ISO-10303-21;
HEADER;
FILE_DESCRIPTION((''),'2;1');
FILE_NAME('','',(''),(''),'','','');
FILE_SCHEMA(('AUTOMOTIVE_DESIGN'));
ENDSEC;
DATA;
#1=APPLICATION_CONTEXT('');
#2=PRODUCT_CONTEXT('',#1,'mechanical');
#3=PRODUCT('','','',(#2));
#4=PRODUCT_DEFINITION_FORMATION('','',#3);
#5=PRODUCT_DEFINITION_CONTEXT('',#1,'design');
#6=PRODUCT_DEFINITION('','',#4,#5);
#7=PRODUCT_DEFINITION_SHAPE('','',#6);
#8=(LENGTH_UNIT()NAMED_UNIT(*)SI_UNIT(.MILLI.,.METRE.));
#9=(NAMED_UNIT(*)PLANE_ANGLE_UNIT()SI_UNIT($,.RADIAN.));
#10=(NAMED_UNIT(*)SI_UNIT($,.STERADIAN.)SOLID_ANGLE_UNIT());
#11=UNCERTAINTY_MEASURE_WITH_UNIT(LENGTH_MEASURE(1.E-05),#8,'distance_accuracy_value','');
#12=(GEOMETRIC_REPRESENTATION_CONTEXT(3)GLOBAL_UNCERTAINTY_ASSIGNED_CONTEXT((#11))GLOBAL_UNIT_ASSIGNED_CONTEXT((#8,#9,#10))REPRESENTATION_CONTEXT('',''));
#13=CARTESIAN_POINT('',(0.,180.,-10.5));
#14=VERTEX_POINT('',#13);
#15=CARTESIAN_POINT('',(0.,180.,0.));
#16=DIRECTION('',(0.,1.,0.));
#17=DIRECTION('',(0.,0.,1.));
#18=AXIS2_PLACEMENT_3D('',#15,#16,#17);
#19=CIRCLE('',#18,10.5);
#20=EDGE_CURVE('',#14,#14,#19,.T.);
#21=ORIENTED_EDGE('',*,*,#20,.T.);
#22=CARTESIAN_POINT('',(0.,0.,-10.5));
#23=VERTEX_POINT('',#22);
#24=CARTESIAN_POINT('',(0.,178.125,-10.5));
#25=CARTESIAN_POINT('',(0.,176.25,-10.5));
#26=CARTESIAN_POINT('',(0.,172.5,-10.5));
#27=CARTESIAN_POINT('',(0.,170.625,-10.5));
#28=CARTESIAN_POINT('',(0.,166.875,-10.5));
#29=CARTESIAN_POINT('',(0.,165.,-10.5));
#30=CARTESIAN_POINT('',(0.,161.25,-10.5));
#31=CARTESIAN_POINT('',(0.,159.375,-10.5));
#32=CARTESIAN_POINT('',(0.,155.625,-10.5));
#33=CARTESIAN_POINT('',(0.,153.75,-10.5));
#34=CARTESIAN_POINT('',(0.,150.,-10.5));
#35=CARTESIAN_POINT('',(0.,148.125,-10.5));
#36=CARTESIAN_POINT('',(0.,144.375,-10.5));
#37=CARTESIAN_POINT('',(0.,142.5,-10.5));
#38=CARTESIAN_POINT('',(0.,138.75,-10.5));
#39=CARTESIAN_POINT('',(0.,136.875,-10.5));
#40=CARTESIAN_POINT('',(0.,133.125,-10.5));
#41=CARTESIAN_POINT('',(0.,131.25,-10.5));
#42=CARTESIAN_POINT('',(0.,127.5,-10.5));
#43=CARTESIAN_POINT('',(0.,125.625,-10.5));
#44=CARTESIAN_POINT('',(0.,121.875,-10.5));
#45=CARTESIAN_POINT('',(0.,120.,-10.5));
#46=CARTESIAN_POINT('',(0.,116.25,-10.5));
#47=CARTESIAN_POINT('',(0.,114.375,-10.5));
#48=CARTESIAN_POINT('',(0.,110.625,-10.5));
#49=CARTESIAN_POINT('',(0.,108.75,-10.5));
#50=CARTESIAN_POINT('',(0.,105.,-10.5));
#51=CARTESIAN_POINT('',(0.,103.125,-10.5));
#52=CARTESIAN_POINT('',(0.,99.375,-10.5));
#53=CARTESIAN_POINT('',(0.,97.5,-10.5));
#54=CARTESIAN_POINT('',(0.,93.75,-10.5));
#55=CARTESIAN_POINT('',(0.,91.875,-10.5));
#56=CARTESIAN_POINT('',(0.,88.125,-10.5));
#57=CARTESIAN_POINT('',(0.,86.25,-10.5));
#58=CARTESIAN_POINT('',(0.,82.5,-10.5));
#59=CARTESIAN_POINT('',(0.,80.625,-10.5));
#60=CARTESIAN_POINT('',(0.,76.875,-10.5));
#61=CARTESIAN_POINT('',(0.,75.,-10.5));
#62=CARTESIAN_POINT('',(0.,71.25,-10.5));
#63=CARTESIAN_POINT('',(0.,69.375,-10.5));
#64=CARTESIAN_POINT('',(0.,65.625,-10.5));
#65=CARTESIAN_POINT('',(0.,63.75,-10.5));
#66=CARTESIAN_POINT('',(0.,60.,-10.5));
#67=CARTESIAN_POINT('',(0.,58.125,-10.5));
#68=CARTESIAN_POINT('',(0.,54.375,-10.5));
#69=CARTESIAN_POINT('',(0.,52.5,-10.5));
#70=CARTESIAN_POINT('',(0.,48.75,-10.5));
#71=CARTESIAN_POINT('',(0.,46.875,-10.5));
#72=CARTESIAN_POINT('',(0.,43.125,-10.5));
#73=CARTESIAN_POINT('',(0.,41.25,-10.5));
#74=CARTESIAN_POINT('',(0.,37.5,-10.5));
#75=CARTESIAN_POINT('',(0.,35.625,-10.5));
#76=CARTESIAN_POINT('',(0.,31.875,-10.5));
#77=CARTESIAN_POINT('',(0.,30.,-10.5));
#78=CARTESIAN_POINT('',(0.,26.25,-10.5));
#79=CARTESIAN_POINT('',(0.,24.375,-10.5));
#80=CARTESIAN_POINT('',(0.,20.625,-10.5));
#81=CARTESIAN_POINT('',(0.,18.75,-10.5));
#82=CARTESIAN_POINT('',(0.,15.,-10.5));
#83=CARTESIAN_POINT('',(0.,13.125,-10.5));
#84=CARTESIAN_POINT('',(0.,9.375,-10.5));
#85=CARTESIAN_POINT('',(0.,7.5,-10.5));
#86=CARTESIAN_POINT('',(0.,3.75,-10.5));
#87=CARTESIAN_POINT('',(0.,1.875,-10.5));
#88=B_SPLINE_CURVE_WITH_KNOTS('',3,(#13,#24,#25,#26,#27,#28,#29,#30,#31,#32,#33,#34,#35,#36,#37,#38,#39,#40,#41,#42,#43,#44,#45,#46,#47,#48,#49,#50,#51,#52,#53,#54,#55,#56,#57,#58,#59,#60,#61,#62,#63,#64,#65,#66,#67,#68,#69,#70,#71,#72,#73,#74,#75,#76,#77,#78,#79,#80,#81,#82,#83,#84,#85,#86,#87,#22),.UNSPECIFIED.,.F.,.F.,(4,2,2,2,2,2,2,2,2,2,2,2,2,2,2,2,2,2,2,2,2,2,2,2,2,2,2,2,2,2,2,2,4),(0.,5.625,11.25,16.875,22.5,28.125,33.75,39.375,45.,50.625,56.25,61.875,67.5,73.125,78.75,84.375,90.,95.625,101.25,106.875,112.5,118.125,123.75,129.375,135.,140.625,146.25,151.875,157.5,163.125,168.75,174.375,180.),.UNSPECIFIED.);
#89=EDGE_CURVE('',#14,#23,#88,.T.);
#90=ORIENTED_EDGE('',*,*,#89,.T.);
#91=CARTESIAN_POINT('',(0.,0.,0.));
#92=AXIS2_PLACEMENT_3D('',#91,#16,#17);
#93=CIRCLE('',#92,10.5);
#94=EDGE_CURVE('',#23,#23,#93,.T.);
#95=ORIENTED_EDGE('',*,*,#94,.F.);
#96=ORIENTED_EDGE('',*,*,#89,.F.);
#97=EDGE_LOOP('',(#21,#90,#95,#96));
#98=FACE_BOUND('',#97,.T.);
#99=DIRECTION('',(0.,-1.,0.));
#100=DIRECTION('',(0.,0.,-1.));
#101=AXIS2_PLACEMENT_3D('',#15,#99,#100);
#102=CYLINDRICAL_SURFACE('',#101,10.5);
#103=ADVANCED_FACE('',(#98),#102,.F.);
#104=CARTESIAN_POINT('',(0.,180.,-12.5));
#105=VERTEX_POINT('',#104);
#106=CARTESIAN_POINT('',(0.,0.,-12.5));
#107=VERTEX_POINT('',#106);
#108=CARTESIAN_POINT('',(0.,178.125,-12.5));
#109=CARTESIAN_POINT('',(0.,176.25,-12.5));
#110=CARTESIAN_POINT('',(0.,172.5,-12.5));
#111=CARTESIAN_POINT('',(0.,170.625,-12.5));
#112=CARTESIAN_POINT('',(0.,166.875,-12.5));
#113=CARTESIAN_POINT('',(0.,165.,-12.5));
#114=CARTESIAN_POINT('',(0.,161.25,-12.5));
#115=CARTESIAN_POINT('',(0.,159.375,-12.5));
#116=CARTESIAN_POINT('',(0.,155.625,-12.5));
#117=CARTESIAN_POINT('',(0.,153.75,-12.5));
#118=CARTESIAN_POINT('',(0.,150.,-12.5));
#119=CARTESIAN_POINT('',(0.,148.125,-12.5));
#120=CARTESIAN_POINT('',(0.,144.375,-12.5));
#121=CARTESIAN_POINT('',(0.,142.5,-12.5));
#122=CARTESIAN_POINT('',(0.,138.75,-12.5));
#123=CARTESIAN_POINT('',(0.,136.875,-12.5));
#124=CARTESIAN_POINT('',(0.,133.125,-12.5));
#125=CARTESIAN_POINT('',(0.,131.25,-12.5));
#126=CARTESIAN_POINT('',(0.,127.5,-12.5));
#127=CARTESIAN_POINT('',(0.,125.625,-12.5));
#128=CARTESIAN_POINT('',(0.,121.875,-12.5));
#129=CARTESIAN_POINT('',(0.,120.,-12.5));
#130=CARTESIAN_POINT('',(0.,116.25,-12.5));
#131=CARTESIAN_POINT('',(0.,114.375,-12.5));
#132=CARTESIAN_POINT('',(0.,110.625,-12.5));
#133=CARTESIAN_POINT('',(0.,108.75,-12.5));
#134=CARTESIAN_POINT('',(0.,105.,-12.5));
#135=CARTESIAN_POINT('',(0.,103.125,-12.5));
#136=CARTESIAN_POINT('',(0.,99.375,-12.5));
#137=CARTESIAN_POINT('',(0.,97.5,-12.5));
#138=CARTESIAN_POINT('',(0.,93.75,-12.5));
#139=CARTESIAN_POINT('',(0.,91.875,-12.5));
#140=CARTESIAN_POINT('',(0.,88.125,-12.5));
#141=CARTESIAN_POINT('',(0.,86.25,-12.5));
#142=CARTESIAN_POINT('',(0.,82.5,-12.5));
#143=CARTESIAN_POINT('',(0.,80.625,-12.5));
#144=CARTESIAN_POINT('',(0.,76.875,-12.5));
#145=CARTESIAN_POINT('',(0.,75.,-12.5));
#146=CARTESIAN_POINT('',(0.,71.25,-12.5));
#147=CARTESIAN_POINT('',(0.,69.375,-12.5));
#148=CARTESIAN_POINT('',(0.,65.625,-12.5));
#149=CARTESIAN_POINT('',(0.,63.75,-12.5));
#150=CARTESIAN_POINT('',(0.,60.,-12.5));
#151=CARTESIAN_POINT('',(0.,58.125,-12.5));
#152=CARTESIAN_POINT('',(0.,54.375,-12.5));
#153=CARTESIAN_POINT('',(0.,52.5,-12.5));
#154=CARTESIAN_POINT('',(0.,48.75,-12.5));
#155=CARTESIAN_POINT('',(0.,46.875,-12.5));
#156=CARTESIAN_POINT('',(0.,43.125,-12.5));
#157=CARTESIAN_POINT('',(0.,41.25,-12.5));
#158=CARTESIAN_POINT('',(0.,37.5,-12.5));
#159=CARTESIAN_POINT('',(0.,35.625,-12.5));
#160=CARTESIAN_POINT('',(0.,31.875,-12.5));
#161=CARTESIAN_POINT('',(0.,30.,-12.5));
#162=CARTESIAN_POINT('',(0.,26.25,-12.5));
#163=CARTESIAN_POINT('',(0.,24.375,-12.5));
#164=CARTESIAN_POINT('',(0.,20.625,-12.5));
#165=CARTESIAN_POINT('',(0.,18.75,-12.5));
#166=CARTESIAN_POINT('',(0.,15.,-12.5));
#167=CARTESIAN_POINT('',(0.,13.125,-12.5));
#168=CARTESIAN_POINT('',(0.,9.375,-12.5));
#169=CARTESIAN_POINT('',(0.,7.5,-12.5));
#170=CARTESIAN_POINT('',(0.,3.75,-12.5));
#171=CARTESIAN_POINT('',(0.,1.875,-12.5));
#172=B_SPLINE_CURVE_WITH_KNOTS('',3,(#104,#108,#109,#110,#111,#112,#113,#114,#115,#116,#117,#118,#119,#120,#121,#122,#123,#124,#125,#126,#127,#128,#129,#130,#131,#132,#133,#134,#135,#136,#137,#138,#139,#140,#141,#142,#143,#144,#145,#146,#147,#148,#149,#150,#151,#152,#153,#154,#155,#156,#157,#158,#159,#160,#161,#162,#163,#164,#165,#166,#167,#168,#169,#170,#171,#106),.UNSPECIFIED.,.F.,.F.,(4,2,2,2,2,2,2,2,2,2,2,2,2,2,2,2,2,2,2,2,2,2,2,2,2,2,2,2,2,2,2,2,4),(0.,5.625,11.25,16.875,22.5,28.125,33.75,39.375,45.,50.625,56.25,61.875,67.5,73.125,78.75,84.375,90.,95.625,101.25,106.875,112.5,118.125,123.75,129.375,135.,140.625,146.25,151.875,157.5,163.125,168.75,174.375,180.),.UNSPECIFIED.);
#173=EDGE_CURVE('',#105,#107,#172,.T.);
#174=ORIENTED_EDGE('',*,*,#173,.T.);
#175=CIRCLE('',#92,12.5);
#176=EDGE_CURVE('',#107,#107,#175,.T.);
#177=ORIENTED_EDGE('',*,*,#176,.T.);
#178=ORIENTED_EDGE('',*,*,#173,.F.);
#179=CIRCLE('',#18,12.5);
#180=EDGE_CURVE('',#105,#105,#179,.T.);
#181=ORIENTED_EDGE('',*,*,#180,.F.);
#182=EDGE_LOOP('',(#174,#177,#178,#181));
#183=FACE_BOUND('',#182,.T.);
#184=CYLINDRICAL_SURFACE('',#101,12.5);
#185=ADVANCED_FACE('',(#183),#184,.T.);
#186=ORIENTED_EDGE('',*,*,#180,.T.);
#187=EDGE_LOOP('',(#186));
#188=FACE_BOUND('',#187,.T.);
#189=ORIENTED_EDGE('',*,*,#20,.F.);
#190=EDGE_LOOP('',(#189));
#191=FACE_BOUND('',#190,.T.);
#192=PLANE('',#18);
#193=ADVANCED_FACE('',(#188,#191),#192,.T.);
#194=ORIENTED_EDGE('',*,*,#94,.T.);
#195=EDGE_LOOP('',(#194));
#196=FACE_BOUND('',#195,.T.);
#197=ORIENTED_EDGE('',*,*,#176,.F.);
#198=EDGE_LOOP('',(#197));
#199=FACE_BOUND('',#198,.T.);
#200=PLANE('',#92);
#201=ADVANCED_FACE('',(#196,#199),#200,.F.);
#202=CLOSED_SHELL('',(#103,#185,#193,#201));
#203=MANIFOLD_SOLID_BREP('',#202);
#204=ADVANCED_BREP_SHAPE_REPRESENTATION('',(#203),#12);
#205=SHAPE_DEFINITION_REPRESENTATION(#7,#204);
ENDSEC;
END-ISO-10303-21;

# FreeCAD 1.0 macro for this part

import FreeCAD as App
import Part
import Sketcher

V = App.Vector
Q = App.Units.Quantity

doc = App.newDocument("Part")
body = doc.addObject("PartDesign::Body", "Body")

sketch1 = body.newObject("Sketcher::SketchObject", "Sketch")
sketch1.AttachmentSupport = (doc.getObject("XZ_Plane"), [""])
sketch1.MapMode = "FlatFace"
sketch1.addGeometry(Part.Circle(V(0, 0, 0), V(0, 0, 1), 12), False)
sketch1.addGeometry(Part.Circle(V(0, 0, 0), V(0, 0, 1), 10), False)
sketch1.addConstraint(Sketcher.Constraint("Coincident", 0, 3, -1, 1))
sketch1.addConstraint(Sketcher.Constraint("Coincident", 1, 3, -1, 1))
sketch1.addConstraint(Sketcher.Constraint("Diameter", 0, Q("25 mm")))
sketch1.addConstraint(Sketcher.Constraint("Diameter", 1, Q("21 mm")))
pad1 = body.newObject("PartDesign::Pad", "Pad")
pad1.Profile = sketch1
pad1.Length = 180
pad1.Reversed = True

doc.recompute()
